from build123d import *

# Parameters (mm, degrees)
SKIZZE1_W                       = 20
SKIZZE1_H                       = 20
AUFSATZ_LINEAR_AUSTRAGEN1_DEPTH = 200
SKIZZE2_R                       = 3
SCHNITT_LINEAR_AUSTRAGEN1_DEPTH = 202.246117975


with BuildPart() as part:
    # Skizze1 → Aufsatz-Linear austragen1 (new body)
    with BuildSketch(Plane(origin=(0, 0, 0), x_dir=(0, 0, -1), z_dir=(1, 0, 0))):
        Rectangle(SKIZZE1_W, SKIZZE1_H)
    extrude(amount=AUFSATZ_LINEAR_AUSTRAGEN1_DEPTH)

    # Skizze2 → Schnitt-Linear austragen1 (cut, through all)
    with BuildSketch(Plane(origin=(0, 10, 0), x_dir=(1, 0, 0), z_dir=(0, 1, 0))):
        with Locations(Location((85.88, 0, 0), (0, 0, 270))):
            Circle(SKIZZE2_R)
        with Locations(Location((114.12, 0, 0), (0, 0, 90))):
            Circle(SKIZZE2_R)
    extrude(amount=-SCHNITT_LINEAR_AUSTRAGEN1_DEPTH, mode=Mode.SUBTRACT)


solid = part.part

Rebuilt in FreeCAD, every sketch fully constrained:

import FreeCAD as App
import Part
import Sketcher

doc = App.newDocument("Part")
params = doc.addObject("Spreadsheet::Sheet", "Params")
for row, (alias, value) in enumerate([
    ("sketch1_width", "20 mm"),
    ("pad1_length", "200 mm"),
    ("sketch2_diameter", "6 mm"),
], start=1):
    params.set(f"A{row}", alias)
    params.set(f"B{row}", "=" + value)
    params.setAlias(f"B{row}", alias)

body = doc.addObject("PartDesign::Body", "Body")

# Sketch on YZ plane
sketch1 = body.newObject("Sketcher::SketchObject", "Sketch")
sketch1.AttachmentSupport = (doc.getObject("YZ_Plane"), [""])
sketch1.MapMode = "FlatFace"
sketch1.addGeometry(Part.LineSegment(App.Vector(10, 10, 0), App.Vector(-10, 10, 0)), False)
sketch1.addGeometry(Part.LineSegment(App.Vector(-10, 10, 0), App.Vector(-10, -10, 0)), False)
sketch1.addGeometry(Part.LineSegment(App.Vector(-10, -10, 0), App.Vector(10, -10, 0)), False)
sketch1.addGeometry(Part.LineSegment(App.Vector(10, -10, 0), App.Vector(10, 10, 0)), False)
sketch1.addConstraint(Sketcher.Constraint("Coincident", 0, 2, 1, 1))
sketch1.addConstraint(Sketcher.Constraint("Coincident", 1, 2, 2, 1))
sketch1.addConstraint(Sketcher.Constraint("Coincident", 2, 2, 3, 1))
sketch1.addConstraint(Sketcher.Constraint("Coincident", 3, 2, 0, 1))
sketch1.addConstraint(Sketcher.Constraint("Horizontal", 0))
sketch1.addConstraint(Sketcher.Constraint("Vertical", 1))
sketch1.addConstraint(Sketcher.Constraint("Horizontal", 2))
sketch1.addConstraint(Sketcher.Constraint("Vertical", 3))
sketch1.addConstraint(Sketcher.Constraint("Symmetric", 0, 2, 2, 2, -1, 1))
sketch1.addConstraint(Sketcher.Constraint("Equal", 2, 1))
sketch1.addConstraint(Sketcher.Constraint("DistanceX", 0, 2, 0, 1, 20.0))
sketch1.setExpression("Constraints[10]", "Params.sketch1_width")
pad1 = body.newObject("PartDesign::Pad", "Pad")
pad1.Profile = sketch1
pad1.setExpression("Length", "Params.pad1_length")

# Sketch on XZ plane
sketch2 = body.newObject("Sketcher::SketchObject", "Sketch001")
sketch2.AttachmentSupport = (doc.getObject("XZ_Plane"), [""])
sketch2.MapMode = "FlatFace"
sketch2.AttachmentOffset = App.Placement(App.Vector(0, 0, -10), App.Rotation())
sketch2.addGeometry(Part.Circle(App.Vector(85.9, 0, 0), App.Vector(0, 0, 1), 3), False)
sketch2.addGeometry(Part.Circle(App.Vector(114.1, 0, 0), App.Vector(0, 0, 1), 3), False)
sketch2.addConstraint(Sketcher.Constraint("Equal", 0, 1))
sketch2.addConstraint(Sketcher.Constraint("PointOnObject", 0, 3, -1))
sketch2.addConstraint(Sketcher.Constraint("PointOnObject", 1, 3, -1))
sketch2.addConstraint(Sketcher.Constraint("Diameter", 0, 6.0))
sketch2.addConstraint(Sketcher.Constraint("DistanceX", -1, 1, 0, 3, 85.88))
sketch2.addConstraint(Sketcher.Constraint("DistanceX", -1, 1, 1, 3, 114.12))
sketch2.setExpression("Constraints[3]", "Params.sketch2_diameter")
pocket1 = body.newObject("PartDesign::Pocket", "Pocket")
pocket1.Profile = sketch2
pocket1.Type = "ThroughAll"
pocket1.Reversed = True

doc.recompute()
